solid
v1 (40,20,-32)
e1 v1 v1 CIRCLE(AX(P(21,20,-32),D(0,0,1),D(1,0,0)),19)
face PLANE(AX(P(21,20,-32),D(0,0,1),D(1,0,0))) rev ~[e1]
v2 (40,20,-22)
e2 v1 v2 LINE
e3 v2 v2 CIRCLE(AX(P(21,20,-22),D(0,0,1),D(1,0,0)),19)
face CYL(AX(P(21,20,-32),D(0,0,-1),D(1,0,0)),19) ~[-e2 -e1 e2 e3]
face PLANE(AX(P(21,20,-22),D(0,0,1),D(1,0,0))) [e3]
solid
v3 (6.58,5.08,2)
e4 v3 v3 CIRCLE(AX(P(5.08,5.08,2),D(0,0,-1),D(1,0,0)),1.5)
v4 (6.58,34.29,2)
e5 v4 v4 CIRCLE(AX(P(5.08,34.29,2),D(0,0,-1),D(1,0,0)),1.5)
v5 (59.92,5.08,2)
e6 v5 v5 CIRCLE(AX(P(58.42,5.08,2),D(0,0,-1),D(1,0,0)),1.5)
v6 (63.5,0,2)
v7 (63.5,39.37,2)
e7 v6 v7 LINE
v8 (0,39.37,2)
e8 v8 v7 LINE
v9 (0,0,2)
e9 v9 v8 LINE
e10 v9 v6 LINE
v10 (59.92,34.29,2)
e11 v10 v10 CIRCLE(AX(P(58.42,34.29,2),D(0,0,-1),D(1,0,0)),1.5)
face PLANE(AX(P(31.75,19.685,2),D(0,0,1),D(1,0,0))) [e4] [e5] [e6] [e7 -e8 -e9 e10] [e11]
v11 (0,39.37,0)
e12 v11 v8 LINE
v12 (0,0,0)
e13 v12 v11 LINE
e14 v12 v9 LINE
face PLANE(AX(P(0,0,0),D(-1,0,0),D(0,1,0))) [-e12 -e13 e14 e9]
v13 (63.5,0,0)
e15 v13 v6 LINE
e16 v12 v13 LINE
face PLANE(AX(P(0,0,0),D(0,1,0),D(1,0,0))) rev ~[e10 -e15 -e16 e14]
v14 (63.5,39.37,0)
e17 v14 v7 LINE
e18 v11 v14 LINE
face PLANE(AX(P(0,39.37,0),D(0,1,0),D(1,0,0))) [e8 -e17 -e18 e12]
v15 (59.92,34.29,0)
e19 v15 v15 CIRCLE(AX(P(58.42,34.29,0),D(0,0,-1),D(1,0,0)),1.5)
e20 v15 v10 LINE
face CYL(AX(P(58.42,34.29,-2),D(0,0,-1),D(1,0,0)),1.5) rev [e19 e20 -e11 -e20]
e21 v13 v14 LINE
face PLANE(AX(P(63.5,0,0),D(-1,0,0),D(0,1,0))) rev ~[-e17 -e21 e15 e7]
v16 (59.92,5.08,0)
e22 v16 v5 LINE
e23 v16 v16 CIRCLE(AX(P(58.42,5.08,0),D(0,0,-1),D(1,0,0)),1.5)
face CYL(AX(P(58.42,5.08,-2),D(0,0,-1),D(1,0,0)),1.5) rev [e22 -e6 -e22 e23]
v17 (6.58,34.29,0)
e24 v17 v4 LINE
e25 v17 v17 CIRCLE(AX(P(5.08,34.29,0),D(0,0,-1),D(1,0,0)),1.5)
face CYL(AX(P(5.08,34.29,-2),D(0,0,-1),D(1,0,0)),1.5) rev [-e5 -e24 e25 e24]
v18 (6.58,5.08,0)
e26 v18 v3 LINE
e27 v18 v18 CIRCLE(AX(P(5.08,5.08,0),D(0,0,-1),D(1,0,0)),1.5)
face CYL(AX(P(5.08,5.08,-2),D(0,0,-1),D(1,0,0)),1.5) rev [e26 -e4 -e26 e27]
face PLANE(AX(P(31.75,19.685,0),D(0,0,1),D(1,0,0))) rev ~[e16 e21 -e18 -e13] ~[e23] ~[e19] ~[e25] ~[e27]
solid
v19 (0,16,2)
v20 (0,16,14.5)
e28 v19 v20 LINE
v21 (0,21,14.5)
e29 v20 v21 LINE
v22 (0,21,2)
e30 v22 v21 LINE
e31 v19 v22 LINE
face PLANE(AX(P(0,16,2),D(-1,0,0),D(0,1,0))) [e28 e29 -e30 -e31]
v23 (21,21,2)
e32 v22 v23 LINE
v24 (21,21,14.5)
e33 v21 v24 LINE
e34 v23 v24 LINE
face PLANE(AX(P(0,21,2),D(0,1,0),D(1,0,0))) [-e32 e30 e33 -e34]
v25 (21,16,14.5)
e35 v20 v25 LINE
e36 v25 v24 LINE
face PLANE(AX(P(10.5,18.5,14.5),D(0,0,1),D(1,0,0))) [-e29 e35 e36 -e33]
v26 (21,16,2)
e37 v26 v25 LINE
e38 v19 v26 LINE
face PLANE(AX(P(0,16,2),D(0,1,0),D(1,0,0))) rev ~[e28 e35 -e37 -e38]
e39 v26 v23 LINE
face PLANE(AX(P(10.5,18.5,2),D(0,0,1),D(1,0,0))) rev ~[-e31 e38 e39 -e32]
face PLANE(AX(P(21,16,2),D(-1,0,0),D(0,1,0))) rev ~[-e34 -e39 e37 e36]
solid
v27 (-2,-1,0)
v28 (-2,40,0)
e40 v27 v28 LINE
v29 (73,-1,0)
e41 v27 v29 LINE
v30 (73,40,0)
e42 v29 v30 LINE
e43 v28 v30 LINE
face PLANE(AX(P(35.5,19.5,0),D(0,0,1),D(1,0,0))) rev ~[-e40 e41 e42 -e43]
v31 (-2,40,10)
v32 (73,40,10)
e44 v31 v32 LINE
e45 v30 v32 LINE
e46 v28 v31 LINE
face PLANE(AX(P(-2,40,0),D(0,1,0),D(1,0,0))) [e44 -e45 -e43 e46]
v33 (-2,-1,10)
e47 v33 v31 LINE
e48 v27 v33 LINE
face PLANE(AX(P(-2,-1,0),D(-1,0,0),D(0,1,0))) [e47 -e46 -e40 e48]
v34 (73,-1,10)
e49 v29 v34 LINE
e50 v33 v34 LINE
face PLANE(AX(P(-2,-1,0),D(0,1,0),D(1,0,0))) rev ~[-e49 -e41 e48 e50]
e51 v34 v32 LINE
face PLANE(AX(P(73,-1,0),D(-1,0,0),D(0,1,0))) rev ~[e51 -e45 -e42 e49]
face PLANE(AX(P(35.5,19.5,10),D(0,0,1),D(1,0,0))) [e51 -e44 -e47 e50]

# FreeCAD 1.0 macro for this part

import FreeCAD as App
import Part
import Sketcher

V = App.Vector


def add_polygon(sketch, points):
    """Adds a closed chain of lines whose ends are joined by coincident constraints."""
    first, n = sketch.GeometryCount, len(points)
    for a, b in zip(points, points[1:] + points[:1]):
        sketch.addGeometry(Part.LineSegment(App.Vector(*a, 0), App.Vector(*b, 0)), False)
    for i in range(n):
        sketch.addConstraint(Sketcher.Constraint("Coincident", first + i, 2, first + (i + 1) % n, 1))

doc = App.newDocument("Part")
body = doc.addObject("PartDesign::Body", "Body")

# Sketch on XY plane
sketch1 = body.newObject("Sketcher::SketchObject", "Sketch")
sketch1.AttachmentSupport = (doc.getObject("XY_Plane"), [""])
sketch1.MapMode = "FlatFace"
sketch1.AttachmentOffset = App.Placement(V(0, 0, 2), App.Rotation())
add_polygon(sketch1, [(0, 21), (0, 16), (21, 16), (21, 21)])  # lines 0-3
sketch1.addConstraint([
    Sketcher.Constraint("Vertical", 0),
    Sketcher.Constraint("Horizontal", 1),
    Sketcher.Constraint("Vertical", 2),
    Sketcher.Constraint("Horizontal", 3),
    Sketcher.Constraint("PointOnObject", 0, 2, -2),
    Sketcher.Constraint("DistanceX", 1, 1, 1, 2, 21.0),
    Sketcher.Constraint("DistanceY", 0, 2, 0, 1, 5.0),
    Sketcher.Constraint("DistanceY", -1, 1, 0, 2, 16.0),
])
pad1 = body.newObject("PartDesign::Pad", "Pad")
pad1.Profile = sketch1
pad1.Length = 12.5
body2 = doc.addObject("PartDesign::Body", "Body001")

# Sketch on XY plane
sketch2 = body2.newObject("Sketcher::SketchObject", "Sketch001")
sketch2.AttachmentSupport = (doc.getObject("XY_Plane001"), [""])
sketch2.MapMode = "FlatFace"
sketch2.AttachmentOffset = App.Placement(V(0, 0, -2), App.Rotation())
sketch2.addGeometry(Part.Circle(V(58.4, 34.3, 0), V(0, 0, 1), 1.5), False)
sketch2.addConstraint([
    Sketcher.Constraint("Diameter", 0, 3.0),
    Sketcher.Constraint("DistanceX", -1, 1, 0, 3, 58.42),
    Sketcher.Constraint("DistanceY", -1, 1, 0, 3, 34.29),
])
pad2 = body2.newObject("PartDesign::Pad", "Pad001")
pad2.Profile = sketch2
pad2.Length = 10
body3 = doc.addObject("PartDesign::Body", "Body002")
body3.AllowCompound = True

# Sketch on XY plane
sketch3 = body3.newObject("Sketcher::SketchObject", "Sketch002")
sketch3.AttachmentSupport = (doc.getObject("XY_Plane002"), [""])
sketch3.MapMode = "FlatFace"
sketch3.AttachmentOffset = App.Placement(V(0, 0, -2), App.Rotation())
sketch3.addGeometry(Part.Circle(V(5.1, 34.3, 0), V(0, 0, 1), 1.5), False)
sketch3.addConstraint([
    Sketcher.Constraint("Diameter", 0, 3.0),
    Sketcher.Constraint("DistanceX", -1, 1, 0, 3, 5.08),
    Sketcher.Constraint("DistanceY", -1, 1, 0, 3, 34.29),
])
pad3 = body3.newObject("PartDesign::Pad", "Pad002")
pad3.Profile = sketch3
pad3.Length = 10
doc.recompute()

boolean = body3.newObject("PartDesign::Boolean", "Boolean")
boolean.Type = "Fuse"
boolean.addObjects([body2])
body4 = doc.addObject("PartDesign::Body", "Body003")

# Sketch on XY plane
sketch4 = body4.newObject("Sketcher::SketchObject", "Sketch003")
sketch4.AttachmentSupport = (doc.getObject("XY_Plane003"), [""])
sketch4.MapMode = "FlatFace"
sketch4.AttachmentOffset = App.Placement(V(0, 0, -2), App.Rotation())
sketch4.addGeometry(Part.Circle(V(58.4, 5.1, 0), V(0, 0, 1), 1.5), False)
sketch4.addConstraint([
    Sketcher.Constraint("Diameter", 0, 3.0),
    Sketcher.Constraint("DistanceX", -1, 1, 0, 3, 58.42),
    Sketcher.Constraint("DistanceY", -1, 1, 0, 3, 5.08),
])
pad4 = body4.newObject("PartDesign::Pad", "Pad003")
pad4.Profile = sketch4
pad4.Length = 10
body5 = doc.addObject("PartDesign::Body", "Body004")
body5.AllowCompound = True

# Sketch on XY plane
sketch5 = body5.newObject("Sketcher::SketchObject", "Sketch004")
sketch5.AttachmentSupport = (doc.getObject("XY_Plane004"), [""])
sketch5.MapMode = "FlatFace"
sketch5.AttachmentOffset = App.Placement(V(0, 0, -2), App.Rotation())
sketch5.addGeometry(Part.Circle(V(5.1, 5.1, 0), V(0, 0, 1), 1.5), False)
sketch5.addConstraint([
    Sketcher.Constraint("Diameter", 0, 3.0),
    Sketcher.Constraint("DistanceX", -1, 1, 0, 3, 5.08),
    Sketcher.Constraint("DistanceY", -1, 1, 0, 3, 5.08),
])
pad5 = body5.newObject("PartDesign::Pad", "Pad004")
pad5.Profile = sketch5
pad5.Length = 10
doc.recompute()

boolean2 = body5.newObject("PartDesign::Boolean", "Boolean001")
boolean2.Type = "Fuse"
boolean2.addObjects([body4])
doc.recompute()

boolean3 = body5.newObject("PartDesign::Boolean", "Boolean002")
boolean3.Type = "Fuse"
boolean3.addObjects([body3])
body6 = doc.addObject("PartDesign::Body", "Body005")

# Sketch on XY plane
sketch6 = body6.newObject("Sketcher::SketchObject", "Sketch005")
sketch6.AttachmentSupport = (doc.getObject("XY_Plane005"), [""])
sketch6.MapMode = "FlatFace"
add_polygon(sketch6, [(0, 39), (0, 0), (64, 0), (64, 39)])  # lines 0-3
sketch6.addConstraint([
    Sketcher.Constraint("Vertical", 0),
    Sketcher.Constraint("Horizontal", 1),
    Sketcher.Constraint("Vertical", 2),
    Sketcher.Constraint("Horizontal", 3),
    Sketcher.Constraint("Coincident", 0, 2, -1, 1),
    Sketcher.Constraint("DistanceX", 1, 1, 1, 2, 63.5),
    Sketcher.Constraint("DistanceY", 0, 2, 0, 1, 39.37),
])
pad6 = body6.newObject("PartDesign::Pad", "Pad005")
pad6.Profile = sketch6
pad6.Length = 2
doc.recompute()

boolean4 = body6.newObject("PartDesign::Boolean", "Boolean003")
boolean4.Type = "Cut"
boolean4.addObjects([body5])
body7 = doc.addObject("PartDesign::Body", "Body006")

# Sketch on XY plane
sketch7 = body7.newObject("Sketcher::SketchObject", "Sketch006")
sketch7.AttachmentSupport = (doc.getObject("XY_Plane006"), [""])
sketch7.MapMode = "FlatFace"
add_polygon(sketch7, [(-2, 40), (-2, -1), (73, -1), (73, 40)])  # lines 0-3
sketch7.addConstraint([
    Sketcher.Constraint("Vertical", 0),
    Sketcher.Constraint("Horizontal", 1),
    Sketcher.Constraint("Vertical", 2),
    Sketcher.Constraint("Horizontal", 3),
    Sketcher.Constraint("DistanceX", 1, 1, 1, 2, 75.0),
    Sketcher.Constraint("DistanceY", 0, 2, 0, 1, 41.0),
    Sketcher.Constraint("DistanceX", 0, 2, -1, 1, 2.0),
    Sketcher.Constraint("DistanceY", 0, 2, -1, 1, 1.0),
])
pad7 = body7.newObject("PartDesign::Pad", "Pad006")
pad7.Profile = sketch7
pad7.Length = 10
body8 = doc.addObject("PartDesign::Body", "Body007")

# Sketch on XY plane
sketch8 = body8.newObject("Sketcher::SketchObject", "Sketch007")
sketch8.AttachmentSupport = (doc.getObject("XY_Plane007"), [""])
sketch8.MapMode = "FlatFace"
sketch8.AttachmentOffset = App.Placement(V(0, 0, -32), App.Rotation())
sketch8.addGeometry(Part.Circle(V(21, 20, 0), V(0, 0, 1), 19), False)
sketch8.addConstraint([
    Sketcher.Constraint("Diameter", 0, 38.0),
    Sketcher.Constraint("DistanceX", -1, 1, 0, 3, 21.0),
    Sketcher.Constraint("DistanceY", -1, 1, 0, 3, 20.0),
])
pad8 = body8.newObject("PartDesign::Pad", "Pad007")
pad8.Profile = sketch8
pad8.Length = 10

doc.recompute()
